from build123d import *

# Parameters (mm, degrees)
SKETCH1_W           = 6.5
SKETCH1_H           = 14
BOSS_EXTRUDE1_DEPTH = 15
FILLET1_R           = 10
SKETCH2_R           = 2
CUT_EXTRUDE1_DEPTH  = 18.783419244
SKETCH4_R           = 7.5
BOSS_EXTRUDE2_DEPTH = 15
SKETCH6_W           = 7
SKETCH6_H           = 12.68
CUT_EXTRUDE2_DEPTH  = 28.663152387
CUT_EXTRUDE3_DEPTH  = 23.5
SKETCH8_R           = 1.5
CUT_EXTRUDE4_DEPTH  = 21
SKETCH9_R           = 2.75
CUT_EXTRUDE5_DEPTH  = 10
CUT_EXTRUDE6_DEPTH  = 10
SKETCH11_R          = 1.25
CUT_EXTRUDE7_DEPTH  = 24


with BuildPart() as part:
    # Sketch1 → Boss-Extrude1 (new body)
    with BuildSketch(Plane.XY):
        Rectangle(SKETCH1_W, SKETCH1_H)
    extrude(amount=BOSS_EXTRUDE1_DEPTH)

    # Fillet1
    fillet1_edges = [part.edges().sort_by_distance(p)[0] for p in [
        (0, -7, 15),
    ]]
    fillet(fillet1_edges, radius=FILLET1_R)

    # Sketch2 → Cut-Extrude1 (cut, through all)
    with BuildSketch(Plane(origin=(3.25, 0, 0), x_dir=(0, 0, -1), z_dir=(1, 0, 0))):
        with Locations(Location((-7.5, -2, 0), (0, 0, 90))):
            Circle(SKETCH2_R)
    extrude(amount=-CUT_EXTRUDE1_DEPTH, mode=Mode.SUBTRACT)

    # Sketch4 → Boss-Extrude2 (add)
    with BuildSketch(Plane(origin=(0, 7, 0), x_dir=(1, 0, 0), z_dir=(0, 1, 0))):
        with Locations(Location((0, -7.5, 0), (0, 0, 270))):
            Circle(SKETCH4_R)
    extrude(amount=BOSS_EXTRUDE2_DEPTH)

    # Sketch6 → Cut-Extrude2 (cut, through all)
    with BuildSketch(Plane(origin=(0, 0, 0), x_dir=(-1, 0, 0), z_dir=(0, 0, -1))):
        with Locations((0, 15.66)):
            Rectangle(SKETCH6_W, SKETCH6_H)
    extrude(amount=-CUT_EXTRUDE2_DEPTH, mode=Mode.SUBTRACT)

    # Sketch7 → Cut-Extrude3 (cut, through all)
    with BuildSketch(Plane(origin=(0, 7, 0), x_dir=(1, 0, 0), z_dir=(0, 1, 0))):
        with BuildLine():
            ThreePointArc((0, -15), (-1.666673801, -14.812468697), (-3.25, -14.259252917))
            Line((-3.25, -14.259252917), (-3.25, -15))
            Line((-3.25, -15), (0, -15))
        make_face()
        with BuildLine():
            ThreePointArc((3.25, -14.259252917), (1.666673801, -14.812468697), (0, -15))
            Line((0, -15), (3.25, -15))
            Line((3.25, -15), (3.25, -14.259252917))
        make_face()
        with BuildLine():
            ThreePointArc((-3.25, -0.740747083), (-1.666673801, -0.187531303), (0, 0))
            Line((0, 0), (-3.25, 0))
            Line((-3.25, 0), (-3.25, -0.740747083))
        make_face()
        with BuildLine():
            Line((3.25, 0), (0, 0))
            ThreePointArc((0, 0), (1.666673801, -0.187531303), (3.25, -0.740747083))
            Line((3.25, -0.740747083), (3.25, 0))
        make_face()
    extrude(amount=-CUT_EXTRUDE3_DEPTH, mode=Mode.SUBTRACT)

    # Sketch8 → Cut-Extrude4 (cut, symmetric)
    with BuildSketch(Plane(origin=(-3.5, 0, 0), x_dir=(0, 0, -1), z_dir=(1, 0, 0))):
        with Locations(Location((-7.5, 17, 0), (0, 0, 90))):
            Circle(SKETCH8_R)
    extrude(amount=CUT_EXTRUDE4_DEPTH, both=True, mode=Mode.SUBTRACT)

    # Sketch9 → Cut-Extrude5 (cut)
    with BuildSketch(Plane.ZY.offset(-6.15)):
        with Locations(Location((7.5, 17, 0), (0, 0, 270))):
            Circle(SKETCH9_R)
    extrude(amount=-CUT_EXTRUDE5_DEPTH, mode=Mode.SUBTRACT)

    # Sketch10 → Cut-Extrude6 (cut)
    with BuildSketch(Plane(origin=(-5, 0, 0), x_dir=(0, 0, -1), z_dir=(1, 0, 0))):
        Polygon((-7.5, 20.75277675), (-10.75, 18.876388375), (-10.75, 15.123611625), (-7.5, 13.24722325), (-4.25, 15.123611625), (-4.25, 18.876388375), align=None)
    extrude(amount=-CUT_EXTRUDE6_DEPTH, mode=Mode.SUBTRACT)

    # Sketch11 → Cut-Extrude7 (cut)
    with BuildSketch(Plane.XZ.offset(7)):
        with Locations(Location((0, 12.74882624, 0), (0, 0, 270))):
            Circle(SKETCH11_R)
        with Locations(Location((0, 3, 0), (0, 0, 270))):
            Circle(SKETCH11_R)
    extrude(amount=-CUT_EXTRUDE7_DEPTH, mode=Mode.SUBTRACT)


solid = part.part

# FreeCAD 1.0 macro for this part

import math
import FreeCAD as App
import Part
import Sketcher
Q = App.Units.Quantity


def edges_at(feature, points):
    """Names of the edges that pass closest to the given points."""
    edges = feature.Shape.Edges
    near = lambda p: min(range(len(edges)), key=lambda i: edges[i].distToShape(Part.Vertex(*p))[0])
    return sorted({f"Edge{near(p) + 1}" for p in points})


def add_polygon(sketch, points):
    """Adds a closed chain of lines whose ends are joined by coincident constraints."""
    first, n = sketch.GeometryCount, len(points)
    for a, b in zip(points, points[1:] + points[:1]):
        sketch.addGeometry(Part.LineSegment(App.Vector(*a, 0), App.Vector(*b, 0)), False)
    for i in range(n):
        sketch.addConstraint(Sketcher.Constraint("Coincident", first + i, 2, first + (i + 1) % n, 1))

doc = App.newDocument("Part")
params = doc.addObject("Spreadsheet::Sheet", "Params")
for row, (alias, value) in enumerate([
    ("sketch1_height", "14 mm"),
    ("sketch1_width", "6.5 mm"),
    ("pad1_length", "15 mm"),
    ("fillet_radius", "10 mm"),
    ("sketch2_diameter", "4 mm"),
    ("sketch3_diameter", "15 mm"),
    ("pad2_length", "15 mm"),
    ("sketch4_width", "7 mm"),
    ("sketch4_height", "12.68 mm"),
    ("sketch5_radius", "7.5 mm"),
    ("sketch5_width", "3.25 mm"),
    ("sketch6_diameter", "3 mm"),
    ("pocket4_length", "42 mm"),
    ("sketch7_diameter", "5.5 mm"),
    ("pocket5_length", "10 mm"),
    ("pocket6_length", "10 mm"),
    ("sketch9_diameter", "2.5 mm"),
    ("pocket7_length", "24 mm"),
], start=1):
    params.set(f"A{row}", alias)
    params.set(f"B{row}", "=" + value)
    params.setAlias(f"B{row}", alias)

body = doc.addObject("PartDesign::Body", "Body")

# Sketch on XY plane
sketch1 = body.newObject("Sketcher::SketchObject", "Sketch")
sketch1.AttachmentSupport = (doc.getObject("XY_Plane"), [""])
sketch1.MapMode = "FlatFace"
add_polygon(sketch1, [(-3, 7), (-3, -7), (3, -7), (3, 7)])  # lines 0-3
sketch1.addConstraint([
    Sketcher.Constraint("Vertical", 0),
    Sketcher.Constraint("Horizontal", 1),
    Sketcher.Constraint("Vertical", 2),
    Sketcher.Constraint("Horizontal", 3),
    Sketcher.Constraint("Symmetric", 0, 2, 2, 2, -1, 1),
    Sketcher.Constraint("DistanceY", 0, 2, 0, 1, 14.0),
    Sketcher.Constraint("DistanceX", 1, 1, 1, 2, 6.5),
])
sketch1.setExpression("Constraints[9]", "Params.sketch1_height")
sketch1.setExpression("Constraints[10]", "Params.sketch1_width")
pad1 = body.newObject("PartDesign::Pad", "Pad")
pad1.Profile = sketch1
pad1.setExpression("Length", "Params.pad1_length")
doc.recompute()

fillet = body.newObject("PartDesign::Fillet", "Fillet")
fillet.Base = (pad1, edges_at(pad1, [(0, -7, 15)]))
fillet.setExpression("Radius", "Params.fillet_radius")

# Sketch on YZ plane
sketch2 = body.newObject("Sketcher::SketchObject", "Sketch001")
sketch2.AttachmentSupport = (doc.getObject("YZ_Plane"), [""])
sketch2.MapMode = "FlatFace"
sketch2.AttachmentOffset = App.Placement(App.Vector(0, 0, 3.25), App.Rotation())
sketch2.addGeometry(Part.Circle(App.Vector(-2, 7.5, 0), App.Vector(0, 0, 1), 2), False)
sketch2.addConstraint([
    Sketcher.Constraint("Diameter", 0, 4.0),
    Sketcher.Constraint("DistanceX", 0, 3, -1, 1, 2.0),
    Sketcher.Constraint("DistanceY", -1, 1, 0, 3, 7.5),
])
sketch2.setExpression("Constraints[0]", "Params.sketch2_diameter")
pocket1 = body.newObject("PartDesign::Pocket", "Pocket")
pocket1.Profile = sketch2
pocket1.Type = "ThroughAll"

# Sketch on XZ plane
sketch3 = body.newObject("Sketcher::SketchObject", "Sketch002")
sketch3.AttachmentSupport = (doc.getObject("XZ_Plane"), [""])
sketch3.MapMode = "FlatFace"
sketch3.AttachmentOffset = App.Placement(App.Vector(0, 0, -7), App.Rotation())
sketch3.addGeometry(Part.Circle(App.Vector(0, 8, 0), App.Vector(0, 0, 1), 8), False)
sketch3.addConstraint([
    Sketcher.Constraint("PointOnObject", 0, 3, -2),
    Sketcher.Constraint("Diameter", 0, 15.0),
    Sketcher.Constraint("DistanceY", -1, 1, 0, 3, 7.5),
])
sketch3.setExpression("Constraints[1]", "Params.sketch3_diameter")
pad2 = body.newObject("PartDesign::Pad", "Pad001")
pad2.Profile = sketch3
pad2.setExpression("Length", "Params.pad2_length")
pad2.Reversed = True

# Sketch on XY plane
sketch4 = body.newObject("Sketcher::SketchObject", "Sketch003")
sketch4.AttachmentSupport = (doc.getObject("XY_Plane"), [""])
sketch4.MapMode = "FlatFace"
add_polygon(sketch4, [(4, 22), (4, 9), (-4, 9), (-4, 22)])  # lines 0-3
sketch4.addConstraint([
    Sketcher.Constraint("Vertical", 0),
    Sketcher.Constraint("Horizontal", 1),
    Sketcher.Constraint("Vertical", 2),
    Sketcher.Constraint("Horizontal", 3),
    Sketcher.Constraint("DistanceX", 1, 2, 1, 1, 7.0),
    Sketcher.Constraint("DistanceY", -1, 1, 2, 2, 22.0),
    Sketcher.Constraint("DistanceY", 0, 2, 0, 1, 12.68),
    Sketcher.Constraint("DistanceX", -1, 1, 0, 2, 3.5),
])
sketch4.setExpression("Constraints[8]", "Params.sketch4_width")
sketch4.setExpression("Constraints[10]", "Params.sketch4_height")
pocket2 = body.newObject("PartDesign::Pocket", "Pocket001")
pocket2.Profile = sketch4
pocket2.Type = "ThroughAll"
pocket2.Reversed = True

# Sketch on XZ plane
sketch5 = body.newObject("Sketcher::SketchObject", "Sketch004")
sketch5.AttachmentSupport = (doc.getObject("XZ_Plane"), [""])
sketch5.MapMode = "FlatFace"
sketch5.AttachmentOffset = App.Placement(App.Vector(0, 0, -7), App.Rotation())
sketch5.addGeometry([
    Part.ArcOfCircle(Part.Circle(App.Vector(0, 7.5, 0), App.Vector(0, 0, 1), 7.5), math.radians(90), math.radians(116)),  # 0
    Part.LineSegment(App.Vector(-3.2, 14.3, 0), App.Vector(-3.2, 15, 0)),  # 1
    Part.LineSegment(App.Vector(-3.2, 15, 0), App.Vector(0, 15, 0)),  # 2
    Part.ArcOfCircle(Part.Circle(App.Vector(0, 7.5, 0), App.Vector(0, 0, 1), 7.5), math.radians(64), math.radians(90)),  # 3
    Part.LineSegment(App.Vector(0, 15, 0), App.Vector(3.2, 15, 0)),  # 4
    Part.LineSegment(App.Vector(3.2, 15, 0), App.Vector(3.2, 14.3, 0)),  # 5
    Part.ArcOfCircle(Part.Circle(App.Vector(0, 7.5, 0), App.Vector(0, 0, 1), 7.5), math.radians(-116), math.radians(-90)),  # 6
    Part.LineSegment(App.Vector(0, 0, 0), App.Vector(-3.2, 0, 0)),  # 7
    Part.LineSegment(App.Vector(-3.2, 0, 0), App.Vector(-3.2, 0.7, 0)),  # 8
    Part.LineSegment(App.Vector(3.2, 0, 0), App.Vector(0, 0, 0)),  # 9
    Part.ArcOfCircle(Part.Circle(App.Vector(0, 7.5, 0), App.Vector(0, 0, 1), 7.5), math.radians(-90), math.radians(-64)),  # 10
    Part.LineSegment(App.Vector(3.2, 0.7, 0), App.Vector(3.2, 0, 0)),  # 11
], False)
sketch5.addConstraint([
    Sketcher.Constraint("Coincident", 0, 2, 1, 1),
    Sketcher.Constraint("Coincident", 1, 2, 2, 1),
    Sketcher.Constraint("Tangent", 2, 2, 0, 1),
    Sketcher.Constraint("Tangent", 3, 2, 4, 1),
    Sketcher.Constraint("Coincident", 4, 2, 5, 1),
    Sketcher.Constraint("Coincident", 5, 2, 3, 1),
    Sketcher.Constraint("Tangent", 6, 2, 7, 1),
    Sketcher.Constraint("Coincident", 7, 2, 8, 1),
    Sketcher.Constraint("Coincident", 8, 2, 6, 1),
    Sketcher.Constraint("Tangent", 9, 2, 10, 1),
    Sketcher.Constraint("Coincident", 10, 2, 11, 1),
    Sketcher.Constraint("Coincident", 11, 2, 9, 1),
    Sketcher.Constraint("Vertical", 1),
    Sketcher.Constraint("Horizontal", 2),
    Sketcher.Constraint("Horizontal", 4),
    Sketcher.Constraint("Vertical", 5),
    Sketcher.Constraint("Horizontal", 7),
    Sketcher.Constraint("Vertical", 8),
    Sketcher.Constraint("Horizontal", 9),
    Sketcher.Constraint("Vertical", 11),
    Sketcher.Constraint("Coincident", 6, 2, -1, 1),
    Sketcher.Constraint("Coincident", 9, 2, -1, 1),
    Sketcher.Constraint("Coincident", 3, 3, 0, 3),
    Sketcher.Constraint("Coincident", 6, 3, 0, 3),
    Sketcher.Constraint("Equal", 0, 3),
    Sketcher.Constraint("Equal", 3, 6),
    Sketcher.Constraint("Equal", 6, 10),
    Sketcher.Constraint("Horizontal", 0, 2, 5, 2),
    Sketcher.Constraint("Horizontal", 8, 2, 10, 2),
    Sketcher.Constraint("Vertical", 1, 2, 7, 2),
    Sketcher.Constraint("Radius", 0, 7.5),
    Sketcher.Constraint("DistanceX", 2, 1, 2, 2, 3.25),
])
sketch5.setExpression("Constraints[30]", "Params.sketch5_radius")
sketch5.setExpression("Constraints[31]", "Params.sketch5_width")
pocket3 = body.newObject("PartDesign::Pocket", "Pocket002")
pocket3.Profile = sketch5
pocket3.Type = "ThroughAll"
pocket3.Reversed = True

# Sketch on YZ plane
sketch6 = body.newObject("Sketcher::SketchObject", "Sketch005")
sketch6.AttachmentSupport = (doc.getObject("YZ_Plane"), [""])
sketch6.MapMode = "FlatFace"
sketch6.AttachmentOffset = App.Placement(App.Vector(0, 0, -3.5), App.Rotation())
sketch6.addGeometry(Part.Circle(App.Vector(17, 7.5, 0), App.Vector(0, 0, 1), 1.5), False)
sketch6.addConstraint([
    Sketcher.Constraint("Diameter", 0, 3.0),
    Sketcher.Constraint("DistanceX", -1, 1, 0, 3, 17.0),
    Sketcher.Constraint("DistanceY", -1, 1, 0, 3, 7.5),
])
sketch6.setExpression("Constraints[0]", "Params.sketch6_diameter")
pocket4 = body.newObject("PartDesign::Pocket", "Pocket003")
pocket4.Profile = sketch6
pocket4.setExpression("Length", "Params.pocket4_length")
pocket4.Midplane = True

# Sketch on YZ plane
sketch7 = body.newObject("Sketcher::SketchObject", "Sketch006")
sketch7.AttachmentSupport = (doc.getObject("YZ_Plane"), [""])
sketch7.MapMode = "FlatFace"
sketch7.AttachmentOffset = App.Placement(App.Vector(0, 0, 6.15), App.Rotation())
sketch7.addGeometry(Part.Circle(App.Vector(17, 7.5, 0), App.Vector(0, 0, 1), 2.8), False)
sketch7.addConstraint([
    Sketcher.Constraint("Diameter", 0, 5.5),
    Sketcher.Constraint("DistanceX", -1, 1, 0, 3, 17.0),
    Sketcher.Constraint("DistanceY", -1, 1, 0, 3, 7.5),
])
sketch7.setExpression("Constraints[0]", "Params.sketch7_diameter")
pocket5 = body.newObject("PartDesign::Pocket", "Pocket004")
pocket5.Profile = sketch7
pocket5.setExpression("Length", "Params.pocket5_length")
pocket5.Reversed = True

# Sketch on YZ plane
sketch8 = body.newObject("Sketcher::SketchObject", "Sketch007")
sketch8.AttachmentSupport = (doc.getObject("YZ_Plane"), [""])
sketch8.MapMode = "FlatFace"
sketch8.AttachmentOffset = App.Placement(App.Vector(0, 0, -5), App.Rotation())
add_polygon(sketch8, [(20.8, 7.5), (18.9, 10.8), (15.1, 10.8), (13.2, 7.5), (15.1, 4.2), (18.9, 4.2)])  # lines 0-5
sketch8.addConstraint([
    Sketcher.Constraint("Horizontal", 1),
    Sketcher.Constraint("Horizontal", 4),
    Sketcher.Constraint("Parallel", 0, 3),
    Sketcher.Constraint("Parallel", 2, 5),
    Sketcher.Constraint("Horizontal", 2, 2, 5, 2),
    Sketcher.Constraint("Vertical", 1, 2, 3, 2),
    Sketcher.Constraint("Vertical", 0, 2, 4, 2),
    Sketcher.Constraint("Angle", 0, Q("120 deg")),
    Sketcher.Constraint("DistanceY", -1, 1, 2, 2, 7.5),
    Sketcher.Constraint("DistanceY", 3, 2, 1, 2, 6.5),
    Sketcher.Constraint("DistanceX", 1, 2, 1, 1, 3.752777),
    Sketcher.Constraint("DistanceX", -1, 1, 0, 2, 18.876388),
])
pocket6 = body.newObject("PartDesign::Pocket", "Pocket005")
pocket6.Profile = sketch8
pocket6.setExpression("Length", "Params.pocket6_length")

# Sketch on XZ plane
sketch9 = body.newObject("Sketcher::SketchObject", "Sketch008")
sketch9.AttachmentSupport = (doc.getObject("XZ_Plane"), [""])
sketch9.MapMode = "FlatFace"
sketch9.AttachmentOffset = App.Placement(App.Vector(0, 0, 7), App.Rotation())
sketch9.addGeometry([
    Part.Circle(App.Vector(0, 12.7, 0), App.Vector(0, 0, 1), 1.2),
    Part.Circle(App.Vector(0, 3, 0), App.Vector(0, 0, 1), 1.2),
], False)
sketch9.addConstraint([
    Sketcher.Constraint("Equal", 0, 1),
    Sketcher.Constraint("PointOnObject", 0, 3, -2),
    Sketcher.Constraint("PointOnObject", 1, 3, -2),
    Sketcher.Constraint("Diameter", 0, 2.5),
    Sketcher.Constraint("DistanceY", -1, 1, 1, 3, 3.0),
    Sketcher.Constraint("DistanceY", -1, 1, 0, 3, 12.748826),
])
sketch9.setExpression("Constraints[3]", "Params.sketch9_diameter")
pocket7 = body.newObject("PartDesign::Pocket", "Pocket006")
pocket7.Profile = sketch9
pocket7.setExpression("Length", "Params.pocket7_length")

doc.recompute()
